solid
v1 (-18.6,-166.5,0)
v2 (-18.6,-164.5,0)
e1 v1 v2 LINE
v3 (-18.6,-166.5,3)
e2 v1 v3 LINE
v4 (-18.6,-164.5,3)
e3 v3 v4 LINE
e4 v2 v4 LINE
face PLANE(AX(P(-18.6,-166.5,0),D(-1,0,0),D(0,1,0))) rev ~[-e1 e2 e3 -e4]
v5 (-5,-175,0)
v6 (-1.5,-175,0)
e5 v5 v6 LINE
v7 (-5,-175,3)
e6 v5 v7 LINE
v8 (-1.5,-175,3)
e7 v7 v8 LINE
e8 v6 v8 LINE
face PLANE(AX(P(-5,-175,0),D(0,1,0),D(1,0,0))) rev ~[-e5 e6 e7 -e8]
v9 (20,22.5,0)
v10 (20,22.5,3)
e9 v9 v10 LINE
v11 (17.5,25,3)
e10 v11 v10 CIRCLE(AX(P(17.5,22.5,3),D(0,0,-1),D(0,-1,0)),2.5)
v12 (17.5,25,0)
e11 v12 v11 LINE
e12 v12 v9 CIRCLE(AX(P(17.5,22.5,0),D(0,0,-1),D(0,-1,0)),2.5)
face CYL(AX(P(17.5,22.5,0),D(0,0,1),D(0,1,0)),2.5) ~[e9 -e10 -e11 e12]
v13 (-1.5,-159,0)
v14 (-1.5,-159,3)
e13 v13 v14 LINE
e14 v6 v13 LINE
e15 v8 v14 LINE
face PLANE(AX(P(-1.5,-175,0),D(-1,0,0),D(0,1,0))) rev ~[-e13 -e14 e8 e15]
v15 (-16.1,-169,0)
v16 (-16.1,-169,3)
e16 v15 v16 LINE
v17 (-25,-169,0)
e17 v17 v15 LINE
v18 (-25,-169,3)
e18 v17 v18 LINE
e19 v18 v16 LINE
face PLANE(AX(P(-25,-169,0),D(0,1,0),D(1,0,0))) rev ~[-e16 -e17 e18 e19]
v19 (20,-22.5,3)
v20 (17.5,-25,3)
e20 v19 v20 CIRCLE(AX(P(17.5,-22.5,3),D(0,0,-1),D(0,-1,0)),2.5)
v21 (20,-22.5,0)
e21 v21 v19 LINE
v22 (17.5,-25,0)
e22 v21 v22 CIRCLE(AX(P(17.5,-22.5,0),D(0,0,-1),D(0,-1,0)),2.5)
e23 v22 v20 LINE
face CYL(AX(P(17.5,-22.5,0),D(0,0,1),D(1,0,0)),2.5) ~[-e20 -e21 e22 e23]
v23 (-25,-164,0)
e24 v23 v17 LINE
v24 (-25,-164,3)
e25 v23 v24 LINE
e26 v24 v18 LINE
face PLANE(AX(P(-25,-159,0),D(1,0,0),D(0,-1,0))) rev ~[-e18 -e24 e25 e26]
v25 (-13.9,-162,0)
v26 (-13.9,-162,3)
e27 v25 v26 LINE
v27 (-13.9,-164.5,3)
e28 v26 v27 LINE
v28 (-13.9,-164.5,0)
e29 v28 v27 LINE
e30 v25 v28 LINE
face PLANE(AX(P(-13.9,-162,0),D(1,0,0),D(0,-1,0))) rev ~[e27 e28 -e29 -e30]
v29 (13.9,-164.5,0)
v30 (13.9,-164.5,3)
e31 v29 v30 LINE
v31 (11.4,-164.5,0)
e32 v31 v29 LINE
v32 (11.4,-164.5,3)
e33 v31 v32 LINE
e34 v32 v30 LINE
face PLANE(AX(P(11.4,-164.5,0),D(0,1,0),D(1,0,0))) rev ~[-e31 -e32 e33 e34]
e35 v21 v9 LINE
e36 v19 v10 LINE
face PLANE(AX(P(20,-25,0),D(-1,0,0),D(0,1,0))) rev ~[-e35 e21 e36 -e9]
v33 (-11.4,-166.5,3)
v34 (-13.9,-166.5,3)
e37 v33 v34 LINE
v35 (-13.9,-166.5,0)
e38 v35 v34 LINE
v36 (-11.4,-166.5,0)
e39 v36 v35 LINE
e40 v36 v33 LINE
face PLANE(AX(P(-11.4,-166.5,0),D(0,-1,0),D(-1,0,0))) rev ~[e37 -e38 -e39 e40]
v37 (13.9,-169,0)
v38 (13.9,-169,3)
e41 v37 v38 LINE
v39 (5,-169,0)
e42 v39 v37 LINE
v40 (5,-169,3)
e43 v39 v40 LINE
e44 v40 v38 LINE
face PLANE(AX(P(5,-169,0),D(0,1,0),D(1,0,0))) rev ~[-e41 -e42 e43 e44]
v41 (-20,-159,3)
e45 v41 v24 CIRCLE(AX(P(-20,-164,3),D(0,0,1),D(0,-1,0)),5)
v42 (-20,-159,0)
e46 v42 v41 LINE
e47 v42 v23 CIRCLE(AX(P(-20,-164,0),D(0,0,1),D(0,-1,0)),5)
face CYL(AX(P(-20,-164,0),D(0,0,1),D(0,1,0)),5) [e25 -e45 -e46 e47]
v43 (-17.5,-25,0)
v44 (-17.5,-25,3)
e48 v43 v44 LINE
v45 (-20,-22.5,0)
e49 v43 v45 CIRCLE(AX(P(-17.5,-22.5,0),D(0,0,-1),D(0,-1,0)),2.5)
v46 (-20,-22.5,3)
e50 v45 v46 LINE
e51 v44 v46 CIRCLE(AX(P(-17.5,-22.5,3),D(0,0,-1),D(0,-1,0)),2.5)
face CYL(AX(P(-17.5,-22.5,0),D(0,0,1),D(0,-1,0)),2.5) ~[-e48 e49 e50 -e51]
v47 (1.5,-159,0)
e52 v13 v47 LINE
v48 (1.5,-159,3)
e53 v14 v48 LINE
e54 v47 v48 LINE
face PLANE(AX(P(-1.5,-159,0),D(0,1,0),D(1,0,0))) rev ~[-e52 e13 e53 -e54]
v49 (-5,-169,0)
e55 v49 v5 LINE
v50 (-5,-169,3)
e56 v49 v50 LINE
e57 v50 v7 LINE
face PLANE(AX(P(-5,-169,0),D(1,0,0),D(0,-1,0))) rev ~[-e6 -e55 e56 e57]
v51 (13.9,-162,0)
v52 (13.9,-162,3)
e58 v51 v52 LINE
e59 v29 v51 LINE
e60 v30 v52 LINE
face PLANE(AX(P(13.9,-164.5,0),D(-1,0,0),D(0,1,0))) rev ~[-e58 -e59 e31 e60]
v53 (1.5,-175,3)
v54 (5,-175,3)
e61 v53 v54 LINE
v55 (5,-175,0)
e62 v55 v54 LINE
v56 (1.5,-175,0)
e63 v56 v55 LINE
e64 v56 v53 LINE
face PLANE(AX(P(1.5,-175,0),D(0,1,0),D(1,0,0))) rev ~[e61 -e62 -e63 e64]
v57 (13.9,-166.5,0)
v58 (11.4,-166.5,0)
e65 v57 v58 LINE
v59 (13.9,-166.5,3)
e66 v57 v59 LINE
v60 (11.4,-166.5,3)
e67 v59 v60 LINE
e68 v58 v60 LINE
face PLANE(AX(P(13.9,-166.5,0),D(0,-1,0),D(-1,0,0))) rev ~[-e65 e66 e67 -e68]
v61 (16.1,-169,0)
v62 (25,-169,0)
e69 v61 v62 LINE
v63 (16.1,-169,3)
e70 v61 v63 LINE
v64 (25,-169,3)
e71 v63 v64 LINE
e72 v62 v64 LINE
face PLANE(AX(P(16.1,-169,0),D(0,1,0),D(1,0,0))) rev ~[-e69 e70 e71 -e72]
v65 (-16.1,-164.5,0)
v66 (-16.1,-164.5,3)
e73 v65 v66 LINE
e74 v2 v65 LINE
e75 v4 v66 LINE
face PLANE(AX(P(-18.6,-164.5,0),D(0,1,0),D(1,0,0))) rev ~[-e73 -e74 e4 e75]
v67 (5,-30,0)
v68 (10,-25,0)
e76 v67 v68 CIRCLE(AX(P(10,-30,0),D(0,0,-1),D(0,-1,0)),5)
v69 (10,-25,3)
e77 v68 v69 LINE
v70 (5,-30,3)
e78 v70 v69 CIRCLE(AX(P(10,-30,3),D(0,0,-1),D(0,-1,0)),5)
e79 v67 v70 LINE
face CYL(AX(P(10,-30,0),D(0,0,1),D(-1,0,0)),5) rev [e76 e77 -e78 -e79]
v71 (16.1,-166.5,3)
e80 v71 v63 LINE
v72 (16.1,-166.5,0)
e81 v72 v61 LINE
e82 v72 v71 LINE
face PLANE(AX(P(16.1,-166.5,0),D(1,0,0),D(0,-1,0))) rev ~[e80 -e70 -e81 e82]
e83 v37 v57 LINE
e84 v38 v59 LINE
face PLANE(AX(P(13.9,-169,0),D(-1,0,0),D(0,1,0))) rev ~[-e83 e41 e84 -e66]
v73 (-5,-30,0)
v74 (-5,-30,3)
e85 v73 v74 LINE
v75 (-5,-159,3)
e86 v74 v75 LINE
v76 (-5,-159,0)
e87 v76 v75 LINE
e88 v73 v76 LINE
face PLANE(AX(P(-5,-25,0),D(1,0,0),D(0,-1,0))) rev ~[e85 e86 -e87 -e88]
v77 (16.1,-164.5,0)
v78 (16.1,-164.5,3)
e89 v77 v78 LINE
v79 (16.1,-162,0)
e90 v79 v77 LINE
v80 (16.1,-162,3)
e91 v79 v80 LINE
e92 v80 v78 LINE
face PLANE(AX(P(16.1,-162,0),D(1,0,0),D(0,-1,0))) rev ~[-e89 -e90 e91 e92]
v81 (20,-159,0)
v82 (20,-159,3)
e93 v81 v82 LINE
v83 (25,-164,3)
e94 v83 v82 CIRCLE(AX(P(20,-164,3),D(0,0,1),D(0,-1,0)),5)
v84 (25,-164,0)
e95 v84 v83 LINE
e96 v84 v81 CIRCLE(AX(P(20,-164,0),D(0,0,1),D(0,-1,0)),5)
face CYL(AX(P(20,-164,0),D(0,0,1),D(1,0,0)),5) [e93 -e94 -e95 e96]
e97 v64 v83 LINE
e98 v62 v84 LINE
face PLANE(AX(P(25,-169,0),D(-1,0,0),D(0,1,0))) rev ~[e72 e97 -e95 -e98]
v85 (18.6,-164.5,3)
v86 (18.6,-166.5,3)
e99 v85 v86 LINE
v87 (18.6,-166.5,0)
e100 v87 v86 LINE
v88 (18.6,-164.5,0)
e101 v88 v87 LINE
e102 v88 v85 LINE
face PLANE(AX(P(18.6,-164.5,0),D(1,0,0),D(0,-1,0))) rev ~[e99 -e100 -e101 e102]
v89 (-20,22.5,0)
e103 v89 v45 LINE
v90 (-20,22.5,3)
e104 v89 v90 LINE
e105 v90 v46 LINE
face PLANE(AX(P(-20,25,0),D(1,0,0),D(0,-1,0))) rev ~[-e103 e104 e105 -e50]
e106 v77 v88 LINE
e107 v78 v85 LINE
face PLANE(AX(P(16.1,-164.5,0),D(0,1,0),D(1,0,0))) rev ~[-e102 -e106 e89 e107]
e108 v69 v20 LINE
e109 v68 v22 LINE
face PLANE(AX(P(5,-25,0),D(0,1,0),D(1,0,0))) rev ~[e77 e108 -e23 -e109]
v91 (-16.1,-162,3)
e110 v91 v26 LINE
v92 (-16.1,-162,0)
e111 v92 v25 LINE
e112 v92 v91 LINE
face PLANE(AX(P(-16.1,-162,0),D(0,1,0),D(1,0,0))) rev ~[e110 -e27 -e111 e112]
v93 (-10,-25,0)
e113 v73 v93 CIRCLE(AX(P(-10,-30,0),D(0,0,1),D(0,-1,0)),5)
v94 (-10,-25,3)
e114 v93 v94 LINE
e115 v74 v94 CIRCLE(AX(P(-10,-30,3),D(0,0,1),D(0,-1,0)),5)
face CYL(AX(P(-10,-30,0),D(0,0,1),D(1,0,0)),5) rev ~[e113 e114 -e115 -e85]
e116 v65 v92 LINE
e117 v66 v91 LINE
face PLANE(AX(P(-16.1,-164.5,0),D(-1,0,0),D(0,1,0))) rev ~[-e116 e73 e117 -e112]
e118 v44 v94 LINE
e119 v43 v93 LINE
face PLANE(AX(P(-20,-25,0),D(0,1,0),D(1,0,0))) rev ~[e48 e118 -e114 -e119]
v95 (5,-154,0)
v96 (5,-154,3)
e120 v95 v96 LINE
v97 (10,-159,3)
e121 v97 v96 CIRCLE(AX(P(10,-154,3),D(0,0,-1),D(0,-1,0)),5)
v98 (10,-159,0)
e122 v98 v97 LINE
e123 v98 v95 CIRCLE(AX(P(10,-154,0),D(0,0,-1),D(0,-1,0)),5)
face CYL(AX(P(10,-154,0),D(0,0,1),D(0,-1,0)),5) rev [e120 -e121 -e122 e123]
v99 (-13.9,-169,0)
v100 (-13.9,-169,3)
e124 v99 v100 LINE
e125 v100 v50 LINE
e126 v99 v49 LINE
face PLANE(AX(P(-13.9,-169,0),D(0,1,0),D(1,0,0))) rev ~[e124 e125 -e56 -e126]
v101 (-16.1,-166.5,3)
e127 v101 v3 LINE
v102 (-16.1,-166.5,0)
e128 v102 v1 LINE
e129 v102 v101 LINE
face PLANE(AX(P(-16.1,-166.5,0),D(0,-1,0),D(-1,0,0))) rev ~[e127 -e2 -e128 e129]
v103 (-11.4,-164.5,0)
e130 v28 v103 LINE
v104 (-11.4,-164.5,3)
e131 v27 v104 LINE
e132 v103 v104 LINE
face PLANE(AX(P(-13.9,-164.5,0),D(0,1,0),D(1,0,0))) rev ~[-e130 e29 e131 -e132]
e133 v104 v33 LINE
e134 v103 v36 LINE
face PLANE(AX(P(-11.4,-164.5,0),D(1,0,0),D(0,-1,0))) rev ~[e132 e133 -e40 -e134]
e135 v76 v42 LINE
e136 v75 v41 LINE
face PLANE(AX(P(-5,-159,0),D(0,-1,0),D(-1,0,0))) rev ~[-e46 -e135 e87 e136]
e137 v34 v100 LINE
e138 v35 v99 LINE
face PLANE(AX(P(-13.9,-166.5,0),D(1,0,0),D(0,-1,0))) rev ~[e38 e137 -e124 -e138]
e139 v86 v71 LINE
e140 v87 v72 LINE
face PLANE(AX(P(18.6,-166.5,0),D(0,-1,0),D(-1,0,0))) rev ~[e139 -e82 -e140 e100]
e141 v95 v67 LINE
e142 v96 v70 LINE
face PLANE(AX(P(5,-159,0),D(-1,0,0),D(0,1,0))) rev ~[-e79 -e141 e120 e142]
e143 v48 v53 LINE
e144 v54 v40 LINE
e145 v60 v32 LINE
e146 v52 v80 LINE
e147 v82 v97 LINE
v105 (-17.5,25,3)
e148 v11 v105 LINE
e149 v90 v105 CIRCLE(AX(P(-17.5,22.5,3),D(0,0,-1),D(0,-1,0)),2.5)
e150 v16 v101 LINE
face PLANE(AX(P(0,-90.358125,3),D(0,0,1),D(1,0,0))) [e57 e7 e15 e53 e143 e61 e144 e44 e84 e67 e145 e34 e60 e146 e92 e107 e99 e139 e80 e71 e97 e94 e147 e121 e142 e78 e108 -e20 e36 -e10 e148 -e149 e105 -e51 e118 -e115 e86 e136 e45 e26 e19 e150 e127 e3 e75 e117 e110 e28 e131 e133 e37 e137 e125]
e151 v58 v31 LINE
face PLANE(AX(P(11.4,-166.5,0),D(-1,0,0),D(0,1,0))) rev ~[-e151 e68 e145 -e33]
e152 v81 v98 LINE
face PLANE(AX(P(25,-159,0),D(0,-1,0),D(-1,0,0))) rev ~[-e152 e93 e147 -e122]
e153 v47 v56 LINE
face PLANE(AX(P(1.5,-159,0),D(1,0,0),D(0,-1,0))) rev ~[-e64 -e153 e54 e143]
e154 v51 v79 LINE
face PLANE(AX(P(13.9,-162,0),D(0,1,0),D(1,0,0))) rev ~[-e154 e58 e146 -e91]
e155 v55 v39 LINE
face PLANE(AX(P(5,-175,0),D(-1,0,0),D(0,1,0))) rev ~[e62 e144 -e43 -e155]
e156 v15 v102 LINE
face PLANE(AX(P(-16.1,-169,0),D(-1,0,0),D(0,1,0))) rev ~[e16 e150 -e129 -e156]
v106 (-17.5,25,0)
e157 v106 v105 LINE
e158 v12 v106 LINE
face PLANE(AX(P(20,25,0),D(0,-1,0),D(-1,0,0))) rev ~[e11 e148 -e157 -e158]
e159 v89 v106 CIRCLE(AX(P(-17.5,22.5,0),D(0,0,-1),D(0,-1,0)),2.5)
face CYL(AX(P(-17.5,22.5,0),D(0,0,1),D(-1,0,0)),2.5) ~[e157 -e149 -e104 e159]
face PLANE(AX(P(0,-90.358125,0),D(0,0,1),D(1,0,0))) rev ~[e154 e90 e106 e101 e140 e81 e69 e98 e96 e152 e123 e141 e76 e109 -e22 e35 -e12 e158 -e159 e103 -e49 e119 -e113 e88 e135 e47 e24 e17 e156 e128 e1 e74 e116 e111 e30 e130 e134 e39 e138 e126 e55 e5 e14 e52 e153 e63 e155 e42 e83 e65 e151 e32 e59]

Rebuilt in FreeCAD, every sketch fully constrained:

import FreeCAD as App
import Part
import Sketcher
Q = App.Units.Quantity


def edges_at(feature, points):
    """Names of the edges that pass closest to the given points."""
    edges = feature.Shape.Edges
    near = lambda p: min(range(len(edges)), key=lambda i: edges[i].distToShape(Part.Vertex(*p))[0])
    return sorted({f"Edge{near(p) + 1}" for p in points})

doc = App.newDocument("Part")
body = doc.addObject("PartDesign::Body", "Body")

# Sketch on XY plane
sketch1 = body.newObject("Sketcher::SketchObject", "Sketch")
sketch1.AttachmentSupport = (doc.getObject("XY_Plane"), [""])
sketch1.MapMode = "FlatFace"
sketch1.addGeometry([
    Part.LineSegment(App.Vector(-5, -25, 0), App.Vector(-5, -159, 0)),  # 0
    Part.LineSegment(App.Vector(-5, -159, 0), App.Vector(-25, -159, 0)),  # 1
    Part.LineSegment(App.Vector(-25, -159, 0), App.Vector(-25, -169, 0)),  # 2
    Part.LineSegment(App.Vector(-25, -169, 0), App.Vector(-16.1, -169, 0)),  # 3
    Part.LineSegment(App.Vector(-16.1, -169, 0), App.Vector(-16.1, -166.5, 0)),  # 4
    Part.LineSegment(App.Vector(-16.1, -166.5, 0), App.Vector(-18.6, -166.5, 0)),  # 5
    Part.LineSegment(App.Vector(-18.6, -166.5, 0), App.Vector(-18.6, -164.5, 0)),  # 6
    Part.LineSegment(App.Vector(-18.6, -164.5, 0), App.Vector(-16.1, -164.5, 0)),  # 7
    Part.LineSegment(App.Vector(-16.1, -164.5, 0), App.Vector(-16.1, -162, 0)),  # 8
    Part.LineSegment(App.Vector(-16.1, -162, 0), App.Vector(-13.9, -162, 0)),  # 9
    Part.LineSegment(App.Vector(-13.9, -162, 0), App.Vector(-13.9, -164.5, 0)),  # 10
    Part.LineSegment(App.Vector(-13.9, -164.5, 0), App.Vector(-11.4, -164.5, 0)),  # 11
    Part.LineSegment(App.Vector(-11.4, -164.5, 0), App.Vector(-11.4, -166.5, 0)),  # 12
    Part.LineSegment(App.Vector(-11.4, -166.5, 0), App.Vector(-13.9, -166.5, 0)),  # 13
    Part.LineSegment(App.Vector(-13.9, -166.5, 0), App.Vector(-13.9, -169, 0)),  # 14
    Part.LineSegment(App.Vector(-13.9, -169, 0), App.Vector(-5, -169, 0)),  # 15
    Part.LineSegment(App.Vector(-5, -169, 0), App.Vector(-5, -175, 0)),  # 16
    Part.LineSegment(App.Vector(-5, -175, 0), App.Vector(-1.5, -175, 0)),  # 17
    Part.LineSegment(App.Vector(-1.5, -175, 0), App.Vector(-1.5, -159, 0)),  # 18
    Part.LineSegment(App.Vector(-1.5, -159, 0), App.Vector(1.5, -159, 0)),  # 19
    Part.LineSegment(App.Vector(1.5, -159, 0), App.Vector(1.5, -175, 0)),  # 20
    Part.LineSegment(App.Vector(1.5, -175, 0), App.Vector(5, -175, 0)),  # 21
    Part.LineSegment(App.Vector(5, -175, 0), App.Vector(5, -169, 0)),  # 22
    Part.LineSegment(App.Vector(5, -169, 0), App.Vector(13.9, -169, 0)),  # 23
    Part.LineSegment(App.Vector(13.9, -169, 0), App.Vector(13.9, -166.5, 0)),  # 24
    Part.LineSegment(App.Vector(13.9, -166.5, 0), App.Vector(11.4, -166.5, 0)),  # 25
    Part.LineSegment(App.Vector(11.4, -166.5, 0), App.Vector(11.4, -164.5, 0)),  # 26
    Part.LineSegment(App.Vector(11.4, -164.5, 0), App.Vector(13.9, -164.5, 0)),  # 27
    Part.LineSegment(App.Vector(13.9, -164.5, 0), App.Vector(13.9, -162, 0)),  # 28
    Part.LineSegment(App.Vector(13.9, -162, 0), App.Vector(16.1, -162, 0)),  # 29
    Part.LineSegment(App.Vector(16.1, -162, 0), App.Vector(16.1, -164.5, 0)),  # 30
    Part.LineSegment(App.Vector(16.1, -164.5, 0), App.Vector(18.6, -164.5, 0)),  # 31
    Part.LineSegment(App.Vector(18.6, -164.5, 0), App.Vector(18.6, -166.5, 0)),  # 32
    Part.LineSegment(App.Vector(18.6, -166.5, 0), App.Vector(16.1, -166.5, 0)),  # 33
    Part.LineSegment(App.Vector(16.1, -166.5, 0), App.Vector(16.1, -169, 0)),  # 34
    Part.LineSegment(App.Vector(16.1, -169, 0), App.Vector(25, -169, 0)),  # 35
    Part.LineSegment(App.Vector(25, -169, 0), App.Vector(25, -159, 0)),  # 36
    Part.LineSegment(App.Vector(25, -159, 0), App.Vector(5, -159, 0)),  # 37
    Part.LineSegment(App.Vector(5, -159, 0), App.Vector(5, -25, 0)),  # 38
    Part.LineSegment(App.Vector(5, -25, 0), App.Vector(20, -25, 0)),  # 39
    Part.LineSegment(App.Vector(20, -25, 0), App.Vector(20, 25, 0)),  # 40
    Part.LineSegment(App.Vector(20, 25, 0), App.Vector(-20, 25, 0)),  # 41
    Part.LineSegment(App.Vector(-20, 25, 0), App.Vector(-20, -25, 0)),  # 42
    Part.LineSegment(App.Vector(-20, -25, 0), App.Vector(-5, -25, 0)),  # 43
], False)
sketch1.addConstraint([
    Sketcher.Constraint("Coincident", 0, 2, 1, 1),
    Sketcher.Constraint("Coincident", 1, 2, 2, 1),
    Sketcher.Constraint("Coincident", 2, 2, 3, 1),
    Sketcher.Constraint("Coincident", 3, 2, 4, 1),
    Sketcher.Constraint("Coincident", 4, 2, 5, 1),
    Sketcher.Constraint("Coincident", 5, 2, 6, 1),
    Sketcher.Constraint("Coincident", 6, 2, 7, 1),
    Sketcher.Constraint("Coincident", 7, 2, 8, 1),
    Sketcher.Constraint("Coincident", 8, 2, 9, 1),
    Sketcher.Constraint("Coincident", 9, 2, 10, 1),
    Sketcher.Constraint("Coincident", 10, 2, 11, 1),
    Sketcher.Constraint("Coincident", 11, 2, 12, 1),
    Sketcher.Constraint("Coincident", 12, 2, 13, 1),
    Sketcher.Constraint("Coincident", 13, 2, 14, 1),
    Sketcher.Constraint("Coincident", 14, 2, 15, 1),
    Sketcher.Constraint("Coincident", 15, 2, 16, 1),
    Sketcher.Constraint("Coincident", 16, 2, 17, 1),
    Sketcher.Constraint("Coincident", 17, 2, 18, 1),
    Sketcher.Constraint("Coincident", 18, 2, 19, 1),
    Sketcher.Constraint("Coincident", 19, 2, 20, 1),
    Sketcher.Constraint("Coincident", 20, 2, 21, 1),
    Sketcher.Constraint("Coincident", 21, 2, 22, 1),
    Sketcher.Constraint("Coincident", 22, 2, 23, 1),
    Sketcher.Constraint("Coincident", 23, 2, 24, 1),
    Sketcher.Constraint("Coincident", 24, 2, 25, 1),
    Sketcher.Constraint("Coincident", 25, 2, 26, 1),
    Sketcher.Constraint("Coincident", 26, 2, 27, 1),
    Sketcher.Constraint("Coincident", 27, 2, 28, 1),
    Sketcher.Constraint("Coincident", 28, 2, 29, 1),
    Sketcher.Constraint("Coincident", 29, 2, 30, 1),
    Sketcher.Constraint("Coincident", 30, 2, 31, 1),
    Sketcher.Constraint("Coincident", 31, 2, 32, 1),
    Sketcher.Constraint("Coincident", 32, 2, 33, 1),
    Sketcher.Constraint("Coincident", 33, 2, 34, 1),
    Sketcher.Constraint("Coincident", 34, 2, 35, 1),
    Sketcher.Constraint("Coincident", 35, 2, 36, 1),
    Sketcher.Constraint("Coincident", 36, 2, 37, 1),
    Sketcher.Constraint("Coincident", 37, 2, 38, 1),
    Sketcher.Constraint("Coincident", 38, 2, 39, 1),
    Sketcher.Constraint("Coincident", 39, 2, 40, 1),
    Sketcher.Constraint("Coincident", 40, 2, 41, 1),
    Sketcher.Constraint("Coincident", 41, 2, 42, 1),
    Sketcher.Constraint("Coincident", 42, 2, 43, 1),
    Sketcher.Constraint("Coincident", 43, 2, 0, 1),
    Sketcher.Constraint("Vertical", 0),
    Sketcher.Constraint("Horizontal", 1),
    Sketcher.Constraint("Vertical", 2),
    Sketcher.Constraint("Horizontal", 3),
    Sketcher.Constraint("Vertical", 4),
    Sketcher.Constraint("Horizontal", 5),
    Sketcher.Constraint("Vertical", 6),
    Sketcher.Constraint("Horizontal", 7),
    Sketcher.Constraint("Vertical", 8),
    Sketcher.Constraint("Horizontal", 9),
    Sketcher.Constraint("Vertical", 10),
    Sketcher.Constraint("Horizontal", 11),
    Sketcher.Constraint("Vertical", 12),
    Sketcher.Constraint("Horizontal", 13),
    Sketcher.Constraint("Vertical", 14),
    Sketcher.Constraint("Horizontal", 15),
    Sketcher.Constraint("Vertical", 16),
    Sketcher.Constraint("Horizontal", 17),
    Sketcher.Constraint("Vertical", 18),
    Sketcher.Constraint("Horizontal", 19),
    Sketcher.Constraint("Vertical", 20),
    Sketcher.Constraint("Horizontal", 21),
    Sketcher.Constraint("Vertical", 22),
    Sketcher.Constraint("Horizontal", 23),
    Sketcher.Constraint("Vertical", 24),
    Sketcher.Constraint("Horizontal", 25),
    Sketcher.Constraint("Vertical", 26),
    Sketcher.Constraint("Horizontal", 27),
    Sketcher.Constraint("Vertical", 28),
    Sketcher.Constraint("Horizontal", 29),
    Sketcher.Constraint("Vertical", 30),
    Sketcher.Constraint("Horizontal", 31),
    Sketcher.Constraint("Vertical", 32),
    Sketcher.Constraint("Horizontal", 33),
    Sketcher.Constraint("Vertical", 34),
    Sketcher.Constraint("Horizontal", 35),
    Sketcher.Constraint("Vertical", 36),
    Sketcher.Constraint("Horizontal", 37),
    Sketcher.Constraint("Vertical", 38),
    Sketcher.Constraint("Horizontal", 39),
    Sketcher.Constraint("Vertical", 40),
    Sketcher.Constraint("Horizontal", 41),
    Sketcher.Constraint("Vertical", 42),
    Sketcher.Constraint("Horizontal", 43),
    Sketcher.Constraint("Symmetric", 39, 2, 41, 2, -1, 1),
    Sketcher.Constraint("Symmetric", 17, 2, 20, 2, -2),
    Sketcher.Constraint("Symmetric", 15, 2, 22, 2, -2),
    Sketcher.Constraint("Symmetric", 13, 2, 24, 2, -2),
    Sketcher.Constraint("Symmetric", 11, 2, 26, 2, -2),
    Sketcher.Constraint("Symmetric", 9, 2, 28, 2, -2),
    Sketcher.Constraint("Symmetric", 7, 2, 30, 2, -2),
    Sketcher.Constraint("Symmetric", 5, 2, 32, 2, -2),
    Sketcher.Constraint("Symmetric", 3, 2, 34, 2, -2),
    Sketcher.Constraint("Symmetric", 1, 2, 36, 2, -2),
    Sketcher.Constraint("Symmetric", 38, 2, 43, 2, -2),
    Sketcher.Constraint("Horizontal", 7, 2, 10, 2),
    Sketcher.Constraint("Horizontal", 5, 2, 12, 2),
    Sketcher.Constraint("Horizontal", 3, 2, 14, 2),
    Sketcher.Constraint("Horizontal", 1, 2, 18, 2),
    Sketcher.Constraint("Vertical", 4, 2, 7, 2),
    Sketcher.Constraint("Vertical", 10, 2, 13, 2),
    Sketcher.Constraint("Vertical", 0, 2, 15, 2),
    Sketcher.Constraint("Equal", 7, 11),
    Sketcher.Constraint("Equal", 3, 15),
    Sketcher.Constraint("Equal", 33, 4),
    Sketcher.Constraint("Equal", 4, 8),
    Sketcher.Constraint("DistanceX", 1, 2, 1, 1, Q("20 mm")),
    Sketcher.Constraint("DistanceX", 19, 1, 19, 2, Q("3 mm")),
    Sketcher.Constraint("DistanceX", 39, 1, 39, 2, Q("15 mm")),
    Sketcher.Constraint("DistanceX", 41, 2, 41, 1, Q("40 mm")),
    Sketcher.Constraint("DistanceY", 0, 2, 0, 1, Q("134 mm")),
    Sketcher.Constraint("DistanceY", 2, 2, 2, 1, Q("10 mm")),
    Sketcher.Constraint("DistanceY", 6, 1, 6, 2, Q("2 mm")),
    Sketcher.Constraint("DistanceY", 16, 2, 16, 1, Q("6 mm")),
    Sketcher.Constraint("DistanceY", 40, 1, 40, 2, Q("50 mm")),
    Sketcher.Constraint("DistanceX", 3, 1, 3, 2, Q("8.9 mm")),
    Sketcher.Constraint("DistanceX", 5, 2, 5, 1, Q("2.5 mm")),
])
pad1 = body.newObject("PartDesign::Pad", "Pad")
pad1.Profile = sketch1
pad1.Length = 3
doc.recompute()

fillet = body.newObject("PartDesign::Fillet", "Fillet")
fillet.Base = (pad1, edges_at(pad1, [
    (5, -25, 1.5),
    (5, -159, 1.5),
    (25, -159, 1.5),
    (-25, -159, 1.5),
    (-5, -25, 1.5),
]))
fillet.Radius = 5
doc.recompute()

fillet2 = body.newObject("PartDesign::Fillet", "Fillet001")
fillet2.Base = (fillet, edges_at(fillet, [
    (-20, -25, 1.5),
    (-20, 25, 1.5),
    (20, 25, 1.5),
    (20, -25, 1.5),
]))
fillet2.Radius = 2.5

doc.recompute()
